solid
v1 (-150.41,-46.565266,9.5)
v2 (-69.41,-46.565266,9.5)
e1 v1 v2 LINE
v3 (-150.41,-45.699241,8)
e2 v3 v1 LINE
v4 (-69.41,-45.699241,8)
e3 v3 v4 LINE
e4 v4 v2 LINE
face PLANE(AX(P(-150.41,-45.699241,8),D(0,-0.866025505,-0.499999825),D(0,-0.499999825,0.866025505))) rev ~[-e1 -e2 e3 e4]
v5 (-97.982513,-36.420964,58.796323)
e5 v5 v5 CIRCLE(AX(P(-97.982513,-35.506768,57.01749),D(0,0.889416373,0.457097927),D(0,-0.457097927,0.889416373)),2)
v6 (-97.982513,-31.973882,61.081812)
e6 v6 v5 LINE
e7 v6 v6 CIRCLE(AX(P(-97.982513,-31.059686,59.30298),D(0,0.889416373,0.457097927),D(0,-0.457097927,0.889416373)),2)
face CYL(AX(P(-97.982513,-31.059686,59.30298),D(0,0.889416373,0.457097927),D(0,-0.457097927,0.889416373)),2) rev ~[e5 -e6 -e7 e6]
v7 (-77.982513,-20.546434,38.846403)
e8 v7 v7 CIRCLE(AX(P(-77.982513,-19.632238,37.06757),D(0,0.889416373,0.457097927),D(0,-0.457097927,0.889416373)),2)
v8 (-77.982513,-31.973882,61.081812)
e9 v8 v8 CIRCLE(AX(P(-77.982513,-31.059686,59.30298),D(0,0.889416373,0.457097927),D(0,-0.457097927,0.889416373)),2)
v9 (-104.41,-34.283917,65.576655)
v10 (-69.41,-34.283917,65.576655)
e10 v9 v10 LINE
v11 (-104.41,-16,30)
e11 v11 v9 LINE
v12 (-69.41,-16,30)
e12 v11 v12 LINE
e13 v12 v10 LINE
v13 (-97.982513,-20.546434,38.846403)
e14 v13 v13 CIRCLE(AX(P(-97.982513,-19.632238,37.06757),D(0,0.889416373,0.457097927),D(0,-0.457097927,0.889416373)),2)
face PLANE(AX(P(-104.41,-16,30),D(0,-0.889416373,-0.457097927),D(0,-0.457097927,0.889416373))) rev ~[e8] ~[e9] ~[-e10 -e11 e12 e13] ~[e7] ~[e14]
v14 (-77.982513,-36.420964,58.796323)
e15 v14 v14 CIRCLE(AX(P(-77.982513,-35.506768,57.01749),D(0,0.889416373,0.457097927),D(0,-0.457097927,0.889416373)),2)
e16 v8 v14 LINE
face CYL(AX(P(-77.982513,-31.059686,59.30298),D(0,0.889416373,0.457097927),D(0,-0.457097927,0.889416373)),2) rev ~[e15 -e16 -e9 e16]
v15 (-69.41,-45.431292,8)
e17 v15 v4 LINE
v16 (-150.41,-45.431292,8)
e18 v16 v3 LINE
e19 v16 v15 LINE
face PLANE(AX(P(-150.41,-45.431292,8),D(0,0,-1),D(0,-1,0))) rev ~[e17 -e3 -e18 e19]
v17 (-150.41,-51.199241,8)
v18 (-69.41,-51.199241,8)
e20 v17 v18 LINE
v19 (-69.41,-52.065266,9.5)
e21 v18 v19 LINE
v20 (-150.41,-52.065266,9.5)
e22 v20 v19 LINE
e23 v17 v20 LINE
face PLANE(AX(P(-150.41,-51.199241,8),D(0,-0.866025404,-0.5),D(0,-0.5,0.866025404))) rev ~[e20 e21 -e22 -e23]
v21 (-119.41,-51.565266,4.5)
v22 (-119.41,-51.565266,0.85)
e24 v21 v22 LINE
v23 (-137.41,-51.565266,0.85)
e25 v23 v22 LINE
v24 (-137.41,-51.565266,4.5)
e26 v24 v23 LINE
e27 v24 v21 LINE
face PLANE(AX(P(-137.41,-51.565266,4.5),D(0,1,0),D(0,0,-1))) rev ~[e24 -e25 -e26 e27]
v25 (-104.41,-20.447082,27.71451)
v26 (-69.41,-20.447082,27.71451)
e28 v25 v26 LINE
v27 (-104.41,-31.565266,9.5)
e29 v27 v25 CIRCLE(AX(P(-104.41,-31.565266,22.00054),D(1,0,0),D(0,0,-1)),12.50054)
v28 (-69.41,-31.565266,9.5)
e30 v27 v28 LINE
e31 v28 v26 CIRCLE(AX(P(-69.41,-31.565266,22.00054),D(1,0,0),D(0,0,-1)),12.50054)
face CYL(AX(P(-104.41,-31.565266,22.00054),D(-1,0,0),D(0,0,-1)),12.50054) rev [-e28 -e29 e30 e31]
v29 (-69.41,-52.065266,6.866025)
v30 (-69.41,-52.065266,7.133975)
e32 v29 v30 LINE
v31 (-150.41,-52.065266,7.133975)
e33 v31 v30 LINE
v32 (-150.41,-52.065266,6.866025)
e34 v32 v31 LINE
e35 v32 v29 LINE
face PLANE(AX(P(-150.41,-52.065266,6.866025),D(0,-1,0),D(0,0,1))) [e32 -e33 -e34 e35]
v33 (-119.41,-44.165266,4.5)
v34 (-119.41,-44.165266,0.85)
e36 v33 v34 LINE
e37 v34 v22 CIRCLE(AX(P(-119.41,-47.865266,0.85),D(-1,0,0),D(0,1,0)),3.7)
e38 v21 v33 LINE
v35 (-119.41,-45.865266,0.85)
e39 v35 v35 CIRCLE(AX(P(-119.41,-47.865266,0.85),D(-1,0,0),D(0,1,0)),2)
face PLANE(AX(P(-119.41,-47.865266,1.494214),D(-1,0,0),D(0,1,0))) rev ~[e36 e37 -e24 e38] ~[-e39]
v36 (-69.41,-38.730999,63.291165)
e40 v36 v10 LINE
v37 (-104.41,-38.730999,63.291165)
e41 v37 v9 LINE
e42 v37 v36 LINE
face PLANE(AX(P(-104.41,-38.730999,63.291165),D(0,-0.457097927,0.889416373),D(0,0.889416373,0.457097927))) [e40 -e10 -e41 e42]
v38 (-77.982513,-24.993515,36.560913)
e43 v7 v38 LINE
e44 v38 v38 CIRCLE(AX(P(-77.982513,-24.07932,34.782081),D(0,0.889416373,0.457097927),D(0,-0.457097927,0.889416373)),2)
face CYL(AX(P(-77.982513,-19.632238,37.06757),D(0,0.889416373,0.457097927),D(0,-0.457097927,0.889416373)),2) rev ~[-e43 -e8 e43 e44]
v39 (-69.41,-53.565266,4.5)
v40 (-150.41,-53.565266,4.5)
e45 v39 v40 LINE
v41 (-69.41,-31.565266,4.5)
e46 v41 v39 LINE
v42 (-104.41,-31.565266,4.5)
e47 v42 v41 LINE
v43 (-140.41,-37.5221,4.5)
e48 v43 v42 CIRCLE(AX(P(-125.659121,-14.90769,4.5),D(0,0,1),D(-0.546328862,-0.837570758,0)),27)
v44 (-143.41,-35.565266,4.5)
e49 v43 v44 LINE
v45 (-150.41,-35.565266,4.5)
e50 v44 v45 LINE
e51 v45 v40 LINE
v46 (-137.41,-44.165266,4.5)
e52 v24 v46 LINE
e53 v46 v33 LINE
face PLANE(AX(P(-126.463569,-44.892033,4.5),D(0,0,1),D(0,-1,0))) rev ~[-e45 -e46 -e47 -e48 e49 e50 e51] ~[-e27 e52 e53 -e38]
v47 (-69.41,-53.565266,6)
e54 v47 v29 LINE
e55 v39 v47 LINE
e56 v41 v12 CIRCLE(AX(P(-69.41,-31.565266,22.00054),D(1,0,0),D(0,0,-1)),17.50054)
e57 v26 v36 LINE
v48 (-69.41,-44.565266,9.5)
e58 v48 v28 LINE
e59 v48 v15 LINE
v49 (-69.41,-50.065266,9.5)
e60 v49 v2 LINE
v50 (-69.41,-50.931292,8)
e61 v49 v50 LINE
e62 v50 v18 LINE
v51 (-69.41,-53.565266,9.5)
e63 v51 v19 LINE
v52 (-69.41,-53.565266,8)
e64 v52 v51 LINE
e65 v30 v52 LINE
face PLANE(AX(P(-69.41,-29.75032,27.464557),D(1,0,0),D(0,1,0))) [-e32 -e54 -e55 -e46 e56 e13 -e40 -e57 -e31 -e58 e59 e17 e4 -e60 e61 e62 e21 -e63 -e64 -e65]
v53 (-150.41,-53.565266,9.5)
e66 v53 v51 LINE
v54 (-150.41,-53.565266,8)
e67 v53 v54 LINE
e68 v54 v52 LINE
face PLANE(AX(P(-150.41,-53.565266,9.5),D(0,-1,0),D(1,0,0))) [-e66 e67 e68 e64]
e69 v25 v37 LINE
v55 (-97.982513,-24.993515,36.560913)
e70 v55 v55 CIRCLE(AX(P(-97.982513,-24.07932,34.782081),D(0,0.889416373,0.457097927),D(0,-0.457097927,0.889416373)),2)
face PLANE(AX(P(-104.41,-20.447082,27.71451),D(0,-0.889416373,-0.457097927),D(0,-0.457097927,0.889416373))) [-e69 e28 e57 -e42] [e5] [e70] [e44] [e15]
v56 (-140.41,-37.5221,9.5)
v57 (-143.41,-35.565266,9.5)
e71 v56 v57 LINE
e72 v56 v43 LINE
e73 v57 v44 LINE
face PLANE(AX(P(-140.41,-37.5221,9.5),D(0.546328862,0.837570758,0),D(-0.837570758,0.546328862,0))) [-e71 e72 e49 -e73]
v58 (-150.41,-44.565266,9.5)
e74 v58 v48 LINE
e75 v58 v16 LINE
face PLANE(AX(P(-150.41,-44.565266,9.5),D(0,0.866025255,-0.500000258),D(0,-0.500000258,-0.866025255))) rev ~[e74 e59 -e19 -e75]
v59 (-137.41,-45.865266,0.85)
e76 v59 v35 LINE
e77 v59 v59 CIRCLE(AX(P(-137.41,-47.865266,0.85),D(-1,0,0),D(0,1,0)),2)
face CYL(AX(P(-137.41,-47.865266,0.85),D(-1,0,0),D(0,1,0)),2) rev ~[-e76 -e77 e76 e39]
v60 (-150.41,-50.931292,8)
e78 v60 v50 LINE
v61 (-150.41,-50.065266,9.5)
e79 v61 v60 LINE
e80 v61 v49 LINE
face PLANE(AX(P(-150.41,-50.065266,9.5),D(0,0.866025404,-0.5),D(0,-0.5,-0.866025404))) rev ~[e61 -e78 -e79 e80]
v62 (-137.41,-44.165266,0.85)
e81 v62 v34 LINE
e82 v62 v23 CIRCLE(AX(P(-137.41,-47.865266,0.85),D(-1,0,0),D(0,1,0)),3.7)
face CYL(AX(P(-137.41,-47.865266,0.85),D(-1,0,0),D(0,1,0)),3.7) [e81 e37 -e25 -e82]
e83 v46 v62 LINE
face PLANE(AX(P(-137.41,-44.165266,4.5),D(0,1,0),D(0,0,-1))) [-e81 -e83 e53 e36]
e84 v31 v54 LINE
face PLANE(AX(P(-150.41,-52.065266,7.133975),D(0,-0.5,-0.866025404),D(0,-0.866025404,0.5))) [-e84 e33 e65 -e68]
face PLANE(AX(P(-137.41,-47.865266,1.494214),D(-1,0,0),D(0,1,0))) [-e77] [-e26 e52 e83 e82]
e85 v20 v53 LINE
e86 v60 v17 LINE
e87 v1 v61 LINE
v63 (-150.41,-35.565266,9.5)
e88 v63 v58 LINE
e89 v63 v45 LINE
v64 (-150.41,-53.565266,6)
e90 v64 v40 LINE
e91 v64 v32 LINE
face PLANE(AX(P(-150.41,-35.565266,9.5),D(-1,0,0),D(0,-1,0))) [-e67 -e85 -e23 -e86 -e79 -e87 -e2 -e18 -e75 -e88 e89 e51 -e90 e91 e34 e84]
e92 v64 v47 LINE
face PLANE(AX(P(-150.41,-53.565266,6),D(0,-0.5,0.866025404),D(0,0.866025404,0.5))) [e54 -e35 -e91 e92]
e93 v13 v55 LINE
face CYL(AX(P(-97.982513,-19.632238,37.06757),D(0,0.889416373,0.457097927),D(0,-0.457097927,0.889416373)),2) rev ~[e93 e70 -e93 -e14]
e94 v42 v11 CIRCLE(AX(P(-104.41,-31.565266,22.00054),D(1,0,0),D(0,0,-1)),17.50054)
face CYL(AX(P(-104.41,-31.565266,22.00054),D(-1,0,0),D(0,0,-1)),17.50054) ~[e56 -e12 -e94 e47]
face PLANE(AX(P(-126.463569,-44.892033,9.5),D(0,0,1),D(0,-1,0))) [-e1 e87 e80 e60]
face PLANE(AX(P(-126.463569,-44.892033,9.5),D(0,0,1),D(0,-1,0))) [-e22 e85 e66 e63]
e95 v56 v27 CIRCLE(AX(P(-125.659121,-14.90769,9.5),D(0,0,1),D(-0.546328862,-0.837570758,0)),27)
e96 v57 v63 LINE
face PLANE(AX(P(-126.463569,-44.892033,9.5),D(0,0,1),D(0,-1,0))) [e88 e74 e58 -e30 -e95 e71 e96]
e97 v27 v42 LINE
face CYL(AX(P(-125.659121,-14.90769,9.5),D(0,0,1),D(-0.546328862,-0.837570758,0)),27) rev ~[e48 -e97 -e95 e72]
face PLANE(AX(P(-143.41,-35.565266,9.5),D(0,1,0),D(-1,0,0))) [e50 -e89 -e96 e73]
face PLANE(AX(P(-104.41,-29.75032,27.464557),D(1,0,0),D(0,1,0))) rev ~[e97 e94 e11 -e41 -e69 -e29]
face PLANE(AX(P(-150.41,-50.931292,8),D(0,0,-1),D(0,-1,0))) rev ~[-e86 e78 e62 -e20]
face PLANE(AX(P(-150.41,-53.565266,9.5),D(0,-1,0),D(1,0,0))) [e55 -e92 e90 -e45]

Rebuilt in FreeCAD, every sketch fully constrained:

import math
import FreeCAD as App
import Part
import Sketcher
Q = App.Units.Quantity

doc = App.newDocument("Part")
body = doc.addObject("PartDesign::Body", "Body")

# Sketch on YZ plane
sketch1 = body.newObject("Sketcher::SketchObject", "Sketch")
sketch1.AttachmentSupport = (doc.getObject("YZ_Plane"), [""])
sketch1.MapMode = "FlatFace"
sketch1.addGeometry(Part.LineSegment(App.Vector(-16, 30, 0), App.Vector(-34, 66, 0)), False)
sketch1.addGeometry(Part.LineSegment(App.Vector(-34, 66, 0), App.Vector(-39, 63, 0)), False)
sketch1.addGeometry(Part.LineSegment(App.Vector(-39, 63, 0), App.Vector(-20, 28, 0)), False)
sketch1.addGeometry(Part.ArcOfCircle(Part.Circle(App.Vector(-32, 22, 0), App.Vector(0, 0, 1), 13), math.radians(-90), math.radians(27)), False)
sketch1.addGeometry(Part.LineSegment(App.Vector(-32, 10, 0), App.Vector(-54, 10, 0)), False)
sketch1.addGeometry(Part.LineSegment(App.Vector(-54, 10, 0), App.Vector(-54, 4, 0)), False)
sketch1.addGeometry(Part.LineSegment(App.Vector(-54, 4, 0), App.Vector(-32, 4, 0)), False)
sketch1.addGeometry(Part.ArcOfCircle(Part.Circle(App.Vector(-32, 22, 0), App.Vector(0, 0, 1), 18), math.radians(-90), math.radians(27)), False)
sketch1.addConstraint(Sketcher.Constraint("Coincident", 0, 2, 1, 1))
sketch1.addConstraint(Sketcher.Constraint("Coincident", 1, 2, 2, 1))
sketch1.addConstraint(Sketcher.Constraint("Tangent", 2, 2, 3, 2))
sketch1.addConstraint(Sketcher.Constraint("Tangent", 3, 1, 4, 1))
sketch1.addConstraint(Sketcher.Constraint("Coincident", 4, 2, 5, 1))
sketch1.addConstraint(Sketcher.Constraint("Coincident", 5, 2, 6, 1))
sketch1.addConstraint(Sketcher.Constraint("Tangent", 6, 2, 7, 1))
sketch1.addConstraint(Sketcher.Constraint("Tangent", 7, 2, 0, 1))
sketch1.addConstraint(Sketcher.Constraint("Horizontal", 4))
sketch1.addConstraint(Sketcher.Constraint("Vertical", 5))
sketch1.addConstraint(Sketcher.Constraint("Horizontal", 6))
sketch1.addConstraint(Sketcher.Constraint("Coincident", 7, 3, 3, 3))
sketch1.addConstraint(Sketcher.Constraint("Perpendicular", 0, 1))
sketch1.addConstraint(Sketcher.Constraint("Perpendicular", 1, 2))
sketch1.addConstraint(Sketcher.Constraint("DistanceX", 4, 2, 4, 1, Q("22 mm")))
sketch1.addConstraint(Sketcher.Constraint("DistanceY", 5, 2, 5, 1, Q("5 mm")))
sketch1.addConstraint(Sketcher.Constraint("Distance", 0, Q("40 mm")))
sketch1.addConstraint(Sketcher.Constraint("DistanceX", 7, 2, -1, 1, Q("16 mm")))
sketch1.addConstraint(Sketcher.Constraint("DistanceY", -1, 1, 7, 2, Q("30 mm")))
sketch1.addConstraint(Sketcher.Constraint("Angle", 0, Q("117.2 deg")))
sketch1.addConstraint(Sketcher.Constraint("DistanceY", -1, 1, 3, 1, Q("9.5 mm")))
pad1 = body.newObject("PartDesign::Pad", "Pad")
pad1.Profile = sketch1
pad1.Length = 35

# Sketch on an angled plane
sketch2 = body.newObject("Sketcher::SketchObject", "Sketch001")
sketch2.Placement = App.Placement(App.Vector(0, -0.460472, -0.236651), App.Rotation(App.Vector(0, -0.457097927, 0.889416373), App.Vector(0.999999999, 0, 0), App.Vector(0, 0.889416373, 0.457097927), "ZXY"))
sketch2.addGeometry(Part.Circle(App.Vector(41.9, 26.4, 0), App.Vector(0, 0, 1), 2), False)
sketch2.addGeometry(Part.Circle(App.Vector(66.9, 26.4, 0), App.Vector(0, 0, 1), 2), False)
sketch2.addGeometry(Part.Circle(App.Vector(66.9, 6.4, 0), App.Vector(0, 0, 1), 2), False)
sketch2.addGeometry(Part.Circle(App.Vector(41.9, 6.4, 0), App.Vector(0, 0, 1), 2), False)
sketch2.addConstraint(Sketcher.Constraint("Equal", 0, 1))
sketch2.addConstraint(Sketcher.Constraint("Equal", 1, 2))
sketch2.addConstraint(Sketcher.Constraint("Equal", 2, 3))
sketch2.addConstraint(Sketcher.Constraint("Horizontal", 0, 3, 1, 3))
sketch2.addConstraint(Sketcher.Constraint("Horizontal", 2, 3, 3, 3))
sketch2.addConstraint(Sketcher.Constraint("Vertical", 1, 3, 2, 3))
sketch2.addConstraint(Sketcher.Constraint("Vertical", 0, 3, 3, 3))
sketch2.addConstraint(Sketcher.Constraint("Diameter", 0, Q("4 mm")))
sketch2.addConstraint(Sketcher.Constraint("DistanceX", 0, 3, 1, 3, Q("25 mm")))
sketch2.addConstraint(Sketcher.Constraint("DistanceY", 2, 3, 1, 3, Q("20 mm")))
sketch2.addConstraint(Sketcher.Constraint("DistanceX", -1, 1, 0, 3, Q("41.942359 mm")))
sketch2.addConstraint(Sketcher.Constraint("DistanceY", -1, 1, 0, 3, Q("26.427487 mm")))
pocket1 = body.newObject("PartDesign::Pocket", "Pocket")
pocket1.Profile = sketch2
pocket1.Length = 5

# Sketch on XY plane
sketch3 = body.newObject("Sketcher::SketchObject", "Sketch002")
sketch3.AttachmentSupport = (doc.getObject("XY_Plane"), [""])
sketch3.MapMode = "FlatFace"
sketch3.AttachmentOffset = App.Placement(App.Vector(0, 0, 9.5), App.Rotation())
sketch3.addGeometry(Part.LineSegment(App.Vector(0, -53.6, 0), App.Vector(0, -31.6, 0)), False)
sketch3.addGeometry(Part.ArcOfCircle(Part.Circle(App.Vector(-21.2, -14.9, 0), App.Vector(0, 0, 1), 27), math.radians(-123), math.radians(-38)), False)
sketch3.addGeometry(Part.LineSegment(App.Vector(-36, -37.5, 0), App.Vector(-39, -35.6, 0)), False)
sketch3.addGeometry(Part.LineSegment(App.Vector(-39, -35.6, 0), App.Vector(-46, -35.6, 0)), False)
sketch3.addGeometry(Part.LineSegment(App.Vector(-46, -35.6, 0), App.Vector(-46, -53.6, 0)), False)
sketch3.addGeometry(Part.LineSegment(App.Vector(-46, -53.6, 0), App.Vector(0, -53.6, 0)), False)
sketch3.addConstraint(Sketcher.Constraint("Coincident", 0, 2, 1, 2))
sketch3.addConstraint(Sketcher.Constraint("Tangent", 1, 1, 2, 1))
sketch3.addConstraint(Sketcher.Constraint("Coincident", 2, 2, 3, 1))
sketch3.addConstraint(Sketcher.Constraint("Coincident", 3, 2, 4, 1))
sketch3.addConstraint(Sketcher.Constraint("Coincident", 4, 2, 5, 1))
sketch3.addConstraint(Sketcher.Constraint("Coincident", 5, 2, 0, 1))
sketch3.addConstraint(Sketcher.Constraint("Vertical", 0))
sketch3.addConstraint(Sketcher.Constraint("Horizontal", 3))
sketch3.addConstraint(Sketcher.Constraint("Vertical", 4))
sketch3.addConstraint(Sketcher.Constraint("Horizontal", 5))
sketch3.addConstraint(Sketcher.Constraint("PointOnObject", 0, 2, -2))
sketch3.addConstraint(Sketcher.Constraint("Radius", 1, Q("27 mm")))
sketch3.addConstraint(Sketcher.Constraint("DistanceX", 3, 2, 3, 1, Q("7 mm")))
sketch3.addConstraint(Sketcher.Constraint("DistanceX", 5, 1, 5, 2, Q("46 mm")))
sketch3.addConstraint(Sketcher.Constraint("DistanceY", 0, 1, 0, 2, Q("22 mm")))
sketch3.addConstraint(Sketcher.Constraint("DistanceY", 4, 2, 4, 1, Q("18 mm")))
sketch3.addConstraint(Sketcher.Constraint("DistanceX", 1, 1, -1, 1, Q("36 mm")))
sketch3.addConstraint(Sketcher.Constraint("DistanceY", 1, 1, -1, 1, Q("37.5221 mm")))
pad2 = body.newObject("PartDesign::Pad", "Pad001")
pad2.Profile = sketch3
pad2.Length = 5
pad2.Reversed = True

# Sketch on YZ plane
sketch4 = body.newObject("Sketcher::SketchObject", "Sketch003")
sketch4.AttachmentSupport = (doc.getObject("YZ_Plane"), [""])
sketch4.MapMode = "FlatFace"
sketch4.AttachmentOffset = App.Placement(App.Vector(0, 0, -33), App.Rotation())
sketch4.addGeometry(Part.LineSegment(App.Vector(-44.2, 4.5, 0), App.Vector(-44.2, 0.8, 0)), False)
sketch4.addGeometry(Part.ArcOfCircle(Part.Circle(App.Vector(-47.9, 0.8, 0), App.Vector(0, 0, 1), 3.7), math.radians(180), math.radians(360)), False)
sketch4.addGeometry(Part.LineSegment(App.Vector(-51.6, 0.8, 0), App.Vector(-51.6, 4.5, 0)), False)
sketch4.addGeometry(Part.LineSegment(App.Vector(-51.6, 4.5, 0), App.Vector(-44.2, 4.5, 0)), False)
sketch4.addGeometry(Part.Circle(App.Vector(-47.9, 0.8, 0), App.Vector(0, 0, 1), 2), False)
sketch4.addConstraint(Sketcher.Constraint("Tangent", 0, 2, 1, 2))
sketch4.addConstraint(Sketcher.Constraint("Tangent", 1, 1, 2, 1))
sketch4.addConstraint(Sketcher.Constraint("Coincident", 2, 2, 3, 1))
sketch4.addConstraint(Sketcher.Constraint("Coincident", 3, 2, 0, 1))
sketch4.addConstraint(Sketcher.Constraint("Vertical", 0))
sketch4.addConstraint(Sketcher.Constraint("Vertical", 2))
sketch4.addConstraint(Sketcher.Constraint("Horizontal", 3))
sketch4.addConstraint(Sketcher.Constraint("Coincident", 4, 3, 1, 3))
sketch4.addConstraint(Sketcher.Constraint("Diameter", 4, Q("4 mm")))
sketch4.addConstraint(Sketcher.Constraint("Radius", 1, Q("3.7 mm")))
sketch4.addConstraint(Sketcher.Constraint("DistanceY", 0, 2, 0, 1, Q("3.65 mm")))
sketch4.addConstraint(Sketcher.Constraint("DistanceY", -1, 1, 2, 2, Q("4.5 mm")))
sketch4.addConstraint(Sketcher.Constraint("DistanceX", 1, 3, -1, 1, Q("47.865266 mm")))
pad3 = body.newObject("PartDesign::Pad", "Pad002")
pad3.Profile = sketch4
pad3.Length = 18

# Sketch on YZ plane
sketch5 = body.newObject("Sketcher::SketchObject", "Sketch004")
sketch5.AttachmentSupport = (doc.getObject("YZ_Plane"), [""])
sketch5.MapMode = "FlatFace"
sketch5.AttachmentOffset = App.Placement(App.Vector(0, 0, -46), App.Rotation())
sketch5.addGeometry(Part.LineSegment(App.Vector(-52.07, 6.87, 0), App.Vector(-53.57, 6, 0)), False)
sketch5.addGeometry(Part.LineSegment(App.Vector(-53.57, 6, 0), App.Vector(-53.57, 8, 0)), False)
sketch5.addGeometry(Part.LineSegment(App.Vector(-53.57, 8, 0), App.Vector(-52.07, 7.13, 0)), False)
sketch5.addGeometry(Part.LineSegment(App.Vector(-52.07, 7.13, 0), App.Vector(-52.07, 6.87, 0)), False)
sketch5.addGeometry(Part.LineSegment(App.Vector(-50.07, 9.5, 0), App.Vector(-50.93, 8, 0)), False)
sketch5.addGeometry(Part.LineSegment(App.Vector(-50.93, 8, 0), App.Vector(-51.2, 8, 0)), False)
sketch5.addGeometry(Part.LineSegment(App.Vector(-51.2, 8, 0), App.Vector(-52.07, 9.5, 0)), False)
sketch5.addGeometry(Part.LineSegment(App.Vector(-52.07, 9.5, 0), App.Vector(-50.07, 9.5, 0)), False)
sketch5.addGeometry(Part.LineSegment(App.Vector(-45.7, 8, 0), App.Vector(-46.57, 9.5, 0)), False)
sketch5.addGeometry(Part.LineSegment(App.Vector(-46.57, 9.5, 0), App.Vector(-44.57, 9.5, 0)), False)
sketch5.addGeometry(Part.LineSegment(App.Vector(-44.57, 9.5, 0), App.Vector(-45.43, 8, 0)), False)
sketch5.addGeometry(Part.LineSegment(App.Vector(-45.43, 8, 0), App.Vector(-45.7, 8, 0)), False)
sketch5.addConstraint(Sketcher.Constraint("Coincident", 0, 2, 1, 1))
sketch5.addConstraint(Sketcher.Constraint("Coincident", 1, 2, 2, 1))
sketch5.addConstraint(Sketcher.Constraint("Coincident", 2, 2, 3, 1))
sketch5.addConstraint(Sketcher.Constraint("Coincident", 3, 2, 0, 1))
sketch5.addConstraint(Sketcher.Constraint("Coincident", 4, 2, 5, 1))
sketch5.addConstraint(Sketcher.Constraint("Coincident", 5, 2, 6, 1))
sketch5.addConstraint(Sketcher.Constraint("Coincident", 6, 2, 7, 1))
sketch5.addConstraint(Sketcher.Constraint("Coincident", 7, 2, 4, 1))
sketch5.addConstraint(Sketcher.Constraint("Coincident", 8, 2, 9, 1))
sketch5.addConstraint(Sketcher.Constraint("Coincident", 9, 2, 10, 1))
sketch5.addConstraint(Sketcher.Constraint("Coincident", 10, 2, 11, 1))
sketch5.addConstraint(Sketcher.Constraint("Coincident", 11, 2, 8, 1))
sketch5.addConstraint(Sketcher.Constraint("Vertical", 1))
sketch5.addConstraint(Sketcher.Constraint("Vertical", 3))
sketch5.addConstraint(Sketcher.Constraint("Horizontal", 5))
sketch5.addConstraint(Sketcher.Constraint("Horizontal", 7))
sketch5.addConstraint(Sketcher.Constraint("Horizontal", 9))
sketch5.addConstraint(Sketcher.Constraint("Horizontal", 11))
sketch5.addConstraint(Sketcher.Constraint("Perpendicular", 2, 4))
sketch5.addConstraint(Sketcher.Constraint("Perpendicular", 0, 6))
sketch5.addConstraint(Sketcher.Constraint("Parallel", 6, 8))
sketch5.addConstraint(Sketcher.Constraint("Parallel", 4, 10))
sketch5.addConstraint(Sketcher.Constraint("Horizontal", 1, 2, 4, 2))
sketch5.addConstraint(Sketcher.Constraint("Horizontal", 7, 2, 8, 2))
sketch5.addConstraint(Sketcher.Constraint("Horizontal", 5, 2, 10, 2))
sketch5.addConstraint(Sketcher.Constraint("Vertical", 3, 2, 6, 2))
sketch5.addConstraint(Sketcher.Constraint("Equal", 7, 9))
sketch5.addConstraint(Sketcher.Constraint("Equal", 9, 1))
sketch5.addConstraint(Sketcher.Constraint("Equal", 11, 3))
sketch5.addConstraint(Sketcher.Constraint("Equal", 0, 2))
sketch5.addConstraint(Sketcher.Constraint("DistanceX", 7, 1, 7, 2, Q("2 mm")))
sketch5.addConstraint(Sketcher.Constraint("Angle", 0, Q("-150 deg")))
sketch5.addConstraint(Sketcher.Constraint("DistanceY", -1, 1, 0, 2, Q("6 mm")))
sketch5.addConstraint(Sketcher.Constraint("DistanceY", -1, 1, 6, 2, Q("9.5 mm")))
sketch5.addConstraint(Sketcher.Constraint("DistanceX", 7, 2, 8, 2, Q("3.5 mm")))
sketch5.addConstraint(Sketcher.Constraint("DistanceX", 4, 2, -1, 1, Q("50.931292 mm")))
pocket2 = body.newObject("PartDesign::Pocket", "Pocket001")
pocket2.Profile = sketch5
pocket2.Length = 81
pocket2.Reversed = True
body2 = doc.addObject("PartDesign::Body", "Body001")
doc.recompute()

body.Placement = App.Placement(App.Vector(-104.41, 0, 0), App.Rotation(App.Vector(0, 0, 1), 0))
boolean = body2.newObject("PartDesign::Boolean", "Boolean")
boolean.Type = "Fuse"
boolean.addObjects([body])

doc.recompute()
